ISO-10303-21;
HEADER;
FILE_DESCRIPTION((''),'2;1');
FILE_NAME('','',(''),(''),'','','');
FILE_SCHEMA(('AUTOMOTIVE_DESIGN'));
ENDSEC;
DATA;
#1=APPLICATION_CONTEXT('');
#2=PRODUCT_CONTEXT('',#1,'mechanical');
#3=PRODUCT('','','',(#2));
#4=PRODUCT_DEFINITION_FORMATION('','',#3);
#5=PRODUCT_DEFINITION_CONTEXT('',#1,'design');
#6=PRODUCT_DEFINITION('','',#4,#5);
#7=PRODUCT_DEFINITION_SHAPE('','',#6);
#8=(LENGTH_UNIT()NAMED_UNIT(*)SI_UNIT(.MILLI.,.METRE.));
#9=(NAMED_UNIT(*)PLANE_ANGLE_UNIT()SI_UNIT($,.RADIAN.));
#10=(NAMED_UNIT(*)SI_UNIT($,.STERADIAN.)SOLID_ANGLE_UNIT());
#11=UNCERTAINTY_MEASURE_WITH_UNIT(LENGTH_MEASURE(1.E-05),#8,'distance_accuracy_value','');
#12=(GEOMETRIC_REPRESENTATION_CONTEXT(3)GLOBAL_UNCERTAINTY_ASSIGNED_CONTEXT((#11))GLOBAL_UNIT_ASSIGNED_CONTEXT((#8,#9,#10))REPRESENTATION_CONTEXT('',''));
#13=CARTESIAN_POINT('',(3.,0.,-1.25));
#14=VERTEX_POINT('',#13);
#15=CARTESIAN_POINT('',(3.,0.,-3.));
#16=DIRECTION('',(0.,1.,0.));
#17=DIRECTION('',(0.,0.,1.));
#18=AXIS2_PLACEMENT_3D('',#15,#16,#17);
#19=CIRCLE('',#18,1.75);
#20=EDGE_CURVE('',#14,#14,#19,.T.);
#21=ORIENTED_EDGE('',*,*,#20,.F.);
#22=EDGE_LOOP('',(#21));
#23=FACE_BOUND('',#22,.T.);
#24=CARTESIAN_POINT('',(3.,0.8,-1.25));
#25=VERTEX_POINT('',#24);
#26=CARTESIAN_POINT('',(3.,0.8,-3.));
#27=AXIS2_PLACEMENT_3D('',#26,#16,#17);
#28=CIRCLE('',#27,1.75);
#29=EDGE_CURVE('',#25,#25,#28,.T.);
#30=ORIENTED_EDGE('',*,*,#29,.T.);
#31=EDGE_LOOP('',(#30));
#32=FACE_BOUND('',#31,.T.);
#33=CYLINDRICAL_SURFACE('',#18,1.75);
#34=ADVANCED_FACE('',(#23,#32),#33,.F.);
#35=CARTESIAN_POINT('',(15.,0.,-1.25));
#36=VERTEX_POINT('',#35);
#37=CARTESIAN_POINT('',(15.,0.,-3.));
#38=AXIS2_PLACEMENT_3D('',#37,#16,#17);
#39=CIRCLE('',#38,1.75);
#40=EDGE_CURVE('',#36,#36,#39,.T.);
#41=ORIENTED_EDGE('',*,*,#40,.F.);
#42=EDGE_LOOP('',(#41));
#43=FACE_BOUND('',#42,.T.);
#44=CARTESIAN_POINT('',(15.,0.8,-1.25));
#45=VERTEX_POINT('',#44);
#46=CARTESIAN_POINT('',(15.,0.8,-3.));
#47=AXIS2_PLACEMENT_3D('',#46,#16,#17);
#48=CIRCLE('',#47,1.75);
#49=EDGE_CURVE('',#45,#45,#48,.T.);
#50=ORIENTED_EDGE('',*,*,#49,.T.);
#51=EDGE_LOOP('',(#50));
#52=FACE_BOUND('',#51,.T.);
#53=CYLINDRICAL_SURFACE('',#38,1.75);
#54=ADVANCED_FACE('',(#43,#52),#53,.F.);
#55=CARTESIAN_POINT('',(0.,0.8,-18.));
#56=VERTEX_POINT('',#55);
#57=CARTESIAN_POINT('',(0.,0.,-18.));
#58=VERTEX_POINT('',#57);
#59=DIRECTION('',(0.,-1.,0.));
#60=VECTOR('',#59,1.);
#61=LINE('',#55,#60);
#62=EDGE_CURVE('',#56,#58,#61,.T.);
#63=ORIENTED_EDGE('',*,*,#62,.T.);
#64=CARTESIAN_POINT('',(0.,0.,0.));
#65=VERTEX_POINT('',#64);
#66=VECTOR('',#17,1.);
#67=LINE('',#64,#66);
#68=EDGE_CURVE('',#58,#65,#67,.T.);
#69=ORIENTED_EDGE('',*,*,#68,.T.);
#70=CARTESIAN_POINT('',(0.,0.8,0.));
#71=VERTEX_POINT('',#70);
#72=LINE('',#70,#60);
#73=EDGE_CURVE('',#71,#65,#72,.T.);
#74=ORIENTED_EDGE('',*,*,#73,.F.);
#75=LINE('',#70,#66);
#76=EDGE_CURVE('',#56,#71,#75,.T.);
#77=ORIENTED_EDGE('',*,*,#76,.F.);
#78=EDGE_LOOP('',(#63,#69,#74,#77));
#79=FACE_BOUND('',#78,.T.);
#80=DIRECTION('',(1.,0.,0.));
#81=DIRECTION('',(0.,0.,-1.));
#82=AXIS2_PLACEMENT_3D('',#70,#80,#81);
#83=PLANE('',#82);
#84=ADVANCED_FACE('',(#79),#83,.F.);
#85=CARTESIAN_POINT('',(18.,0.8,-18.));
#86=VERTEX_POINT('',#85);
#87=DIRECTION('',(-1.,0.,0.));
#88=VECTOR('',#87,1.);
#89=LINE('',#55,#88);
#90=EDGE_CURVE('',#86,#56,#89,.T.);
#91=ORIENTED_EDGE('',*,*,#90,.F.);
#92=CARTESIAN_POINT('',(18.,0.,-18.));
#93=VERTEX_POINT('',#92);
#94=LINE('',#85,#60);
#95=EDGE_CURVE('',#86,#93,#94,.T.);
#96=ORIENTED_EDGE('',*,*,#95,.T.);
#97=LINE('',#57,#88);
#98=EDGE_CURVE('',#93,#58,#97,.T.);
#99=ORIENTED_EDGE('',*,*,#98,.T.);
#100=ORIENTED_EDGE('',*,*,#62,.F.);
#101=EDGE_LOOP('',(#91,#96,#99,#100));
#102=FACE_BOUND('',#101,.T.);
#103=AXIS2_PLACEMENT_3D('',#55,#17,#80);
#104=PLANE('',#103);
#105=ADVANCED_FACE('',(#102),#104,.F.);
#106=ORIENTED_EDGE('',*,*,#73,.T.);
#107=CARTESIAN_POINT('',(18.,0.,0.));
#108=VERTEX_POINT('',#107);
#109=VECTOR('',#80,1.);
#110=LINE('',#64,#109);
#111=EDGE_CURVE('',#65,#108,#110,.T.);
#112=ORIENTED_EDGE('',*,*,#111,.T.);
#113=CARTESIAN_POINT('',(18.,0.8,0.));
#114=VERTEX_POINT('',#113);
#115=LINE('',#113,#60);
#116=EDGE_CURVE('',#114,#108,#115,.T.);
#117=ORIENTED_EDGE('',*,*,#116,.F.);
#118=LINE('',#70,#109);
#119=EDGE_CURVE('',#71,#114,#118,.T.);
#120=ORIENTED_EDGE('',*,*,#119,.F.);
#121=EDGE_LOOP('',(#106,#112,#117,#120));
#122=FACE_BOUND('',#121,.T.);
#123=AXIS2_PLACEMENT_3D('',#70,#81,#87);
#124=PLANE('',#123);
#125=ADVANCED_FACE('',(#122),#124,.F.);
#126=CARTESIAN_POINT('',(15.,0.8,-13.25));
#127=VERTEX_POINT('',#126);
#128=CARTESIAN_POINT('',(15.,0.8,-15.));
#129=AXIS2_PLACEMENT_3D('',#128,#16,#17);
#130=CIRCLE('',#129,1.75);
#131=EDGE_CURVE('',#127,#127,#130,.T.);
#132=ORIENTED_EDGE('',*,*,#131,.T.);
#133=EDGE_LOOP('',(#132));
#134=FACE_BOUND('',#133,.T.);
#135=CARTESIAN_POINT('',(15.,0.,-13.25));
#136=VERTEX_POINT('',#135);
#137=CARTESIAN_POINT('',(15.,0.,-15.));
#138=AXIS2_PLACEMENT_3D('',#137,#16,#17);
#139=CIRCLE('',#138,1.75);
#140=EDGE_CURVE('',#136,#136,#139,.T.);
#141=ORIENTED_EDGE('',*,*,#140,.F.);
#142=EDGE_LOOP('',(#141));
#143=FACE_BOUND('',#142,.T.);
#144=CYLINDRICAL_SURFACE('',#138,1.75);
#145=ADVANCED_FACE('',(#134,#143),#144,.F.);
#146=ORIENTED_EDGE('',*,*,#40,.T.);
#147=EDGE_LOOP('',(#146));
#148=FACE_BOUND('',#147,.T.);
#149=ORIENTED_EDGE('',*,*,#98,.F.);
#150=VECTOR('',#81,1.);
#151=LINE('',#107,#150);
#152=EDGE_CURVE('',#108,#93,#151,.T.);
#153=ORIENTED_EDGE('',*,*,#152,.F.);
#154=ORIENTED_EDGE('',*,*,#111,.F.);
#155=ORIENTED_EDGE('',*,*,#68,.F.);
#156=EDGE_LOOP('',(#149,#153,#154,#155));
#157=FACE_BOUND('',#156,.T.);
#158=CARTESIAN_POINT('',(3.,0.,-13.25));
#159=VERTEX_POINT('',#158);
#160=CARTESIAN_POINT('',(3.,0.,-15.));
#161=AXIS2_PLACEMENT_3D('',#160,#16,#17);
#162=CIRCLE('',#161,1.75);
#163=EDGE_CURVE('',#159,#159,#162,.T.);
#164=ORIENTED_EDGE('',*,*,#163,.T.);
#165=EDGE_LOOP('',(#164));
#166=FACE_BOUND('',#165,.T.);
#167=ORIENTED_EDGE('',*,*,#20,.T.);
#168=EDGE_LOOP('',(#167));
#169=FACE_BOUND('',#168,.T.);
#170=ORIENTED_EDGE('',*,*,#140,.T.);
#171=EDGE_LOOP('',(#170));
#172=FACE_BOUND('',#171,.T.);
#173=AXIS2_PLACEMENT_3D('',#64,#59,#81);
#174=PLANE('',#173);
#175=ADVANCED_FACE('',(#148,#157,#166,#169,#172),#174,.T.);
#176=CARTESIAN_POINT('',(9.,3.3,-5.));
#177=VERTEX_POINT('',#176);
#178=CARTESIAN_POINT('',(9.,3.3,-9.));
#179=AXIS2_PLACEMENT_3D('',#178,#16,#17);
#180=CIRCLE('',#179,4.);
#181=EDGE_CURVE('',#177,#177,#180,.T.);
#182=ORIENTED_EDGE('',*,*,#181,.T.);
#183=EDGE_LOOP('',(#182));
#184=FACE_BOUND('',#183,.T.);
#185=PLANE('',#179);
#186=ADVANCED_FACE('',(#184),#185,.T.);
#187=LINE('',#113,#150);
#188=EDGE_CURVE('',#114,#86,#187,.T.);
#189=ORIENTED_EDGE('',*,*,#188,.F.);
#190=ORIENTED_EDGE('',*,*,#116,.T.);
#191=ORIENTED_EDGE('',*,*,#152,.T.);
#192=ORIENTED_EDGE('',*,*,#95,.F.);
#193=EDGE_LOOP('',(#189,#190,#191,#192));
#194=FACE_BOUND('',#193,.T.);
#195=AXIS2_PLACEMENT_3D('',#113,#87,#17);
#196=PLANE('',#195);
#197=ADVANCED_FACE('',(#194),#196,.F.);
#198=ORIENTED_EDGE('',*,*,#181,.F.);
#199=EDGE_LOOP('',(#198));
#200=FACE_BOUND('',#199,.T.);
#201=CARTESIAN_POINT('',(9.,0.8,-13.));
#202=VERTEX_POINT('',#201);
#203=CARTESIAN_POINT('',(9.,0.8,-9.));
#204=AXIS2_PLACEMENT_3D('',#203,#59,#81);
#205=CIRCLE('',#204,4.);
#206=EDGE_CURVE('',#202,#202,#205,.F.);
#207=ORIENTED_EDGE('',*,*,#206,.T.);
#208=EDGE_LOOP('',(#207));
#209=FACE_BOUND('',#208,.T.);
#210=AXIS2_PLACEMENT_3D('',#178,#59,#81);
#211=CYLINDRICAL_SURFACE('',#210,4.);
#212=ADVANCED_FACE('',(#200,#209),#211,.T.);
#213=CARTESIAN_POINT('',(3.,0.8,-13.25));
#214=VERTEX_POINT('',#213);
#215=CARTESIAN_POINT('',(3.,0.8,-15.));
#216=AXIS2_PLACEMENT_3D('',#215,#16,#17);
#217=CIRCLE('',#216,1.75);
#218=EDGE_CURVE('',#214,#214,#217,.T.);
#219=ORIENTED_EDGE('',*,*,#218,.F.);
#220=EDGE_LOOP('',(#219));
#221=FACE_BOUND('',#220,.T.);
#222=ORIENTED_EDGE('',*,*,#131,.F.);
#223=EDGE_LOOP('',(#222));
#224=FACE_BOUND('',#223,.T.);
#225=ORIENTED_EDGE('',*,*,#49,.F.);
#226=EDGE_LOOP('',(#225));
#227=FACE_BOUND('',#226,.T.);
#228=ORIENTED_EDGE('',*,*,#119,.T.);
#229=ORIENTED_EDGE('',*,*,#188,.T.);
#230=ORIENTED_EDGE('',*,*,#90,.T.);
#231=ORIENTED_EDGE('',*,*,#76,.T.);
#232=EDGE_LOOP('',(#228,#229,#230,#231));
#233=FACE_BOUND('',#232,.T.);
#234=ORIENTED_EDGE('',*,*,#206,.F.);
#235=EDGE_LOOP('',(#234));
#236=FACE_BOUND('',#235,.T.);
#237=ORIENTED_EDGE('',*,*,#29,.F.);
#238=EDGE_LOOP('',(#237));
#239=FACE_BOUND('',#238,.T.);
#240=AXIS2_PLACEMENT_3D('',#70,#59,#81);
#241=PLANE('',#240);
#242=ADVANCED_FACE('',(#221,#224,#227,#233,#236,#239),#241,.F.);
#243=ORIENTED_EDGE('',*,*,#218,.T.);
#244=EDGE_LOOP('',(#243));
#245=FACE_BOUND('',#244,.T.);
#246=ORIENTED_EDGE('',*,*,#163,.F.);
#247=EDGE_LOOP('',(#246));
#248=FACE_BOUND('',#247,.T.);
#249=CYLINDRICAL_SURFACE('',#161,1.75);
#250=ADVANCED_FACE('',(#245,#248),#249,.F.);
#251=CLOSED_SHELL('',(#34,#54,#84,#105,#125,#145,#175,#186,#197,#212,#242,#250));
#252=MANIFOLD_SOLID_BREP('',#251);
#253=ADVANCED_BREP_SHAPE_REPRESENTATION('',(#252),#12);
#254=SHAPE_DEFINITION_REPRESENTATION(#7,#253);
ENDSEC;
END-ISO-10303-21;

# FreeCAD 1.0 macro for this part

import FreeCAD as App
import Part
import Sketcher
from FreeCAD import Vector


def add_polygon(sketch, points):
    """Adds a closed chain of lines whose ends are joined by coincident constraints."""
    first, n = sketch.GeometryCount, len(points)
    for a, b in zip(points, points[1:] + points[:1]):
        sketch.addGeometry(Part.LineSegment(App.Vector(*a, 0), App.Vector(*b, 0)), False)
    for i in range(n):
        sketch.addConstraint(Sketcher.Constraint("Coincident", first + i, 2, first + (i + 1) % n, 1))

doc = App.newDocument("Part")
body = doc.addObject("PartDesign::Body", "Body")

# Sketch on XZ plane
sketch1 = body.newObject("Sketcher::SketchObject", "Sketch")
sketch1.AttachmentSupport = (doc.getObject("XZ_Plane"), [""])
sketch1.MapMode = "FlatFace"
add_polygon(sketch1, [(0, -18), (0, 0), (18, 0), (18, -18)])  # lines 0-3
sketch1.addConstraint(Sketcher.Constraint("Vertical", 0))
sketch1.addConstraint(Sketcher.Constraint("Horizontal", 1))
sketch1.addConstraint(Sketcher.Constraint("Vertical", 2))
sketch1.addConstraint(Sketcher.Constraint("Horizontal", 3))
sketch1.addConstraint(Sketcher.Constraint("Coincident", 0, 2, -1, 1))
sketch1.addConstraint(Sketcher.Constraint("Equal", 3, 0))
sketch1.addConstraint(Sketcher.Constraint("DistanceX", 1, 1, 1, 2, 18.0))
pad1 = body.newObject("PartDesign::Pad", "Pad")
pad1.Profile = sketch1
pad1.Length = 0.8
pad1.Reversed = True

# Sketch on XZ plane
sketch2 = body.newObject("Sketcher::SketchObject", "Sketch001")
sketch2.AttachmentSupport = (doc.getObject("XZ_Plane"), [""])
sketch2.MapMode = "FlatFace"
sketch2.AttachmentOffset = App.Placement(Vector(0, 0, -0.8), App.Rotation())
sketch2.addGeometry(Part.Circle(Vector(3, -15, 0), Vector(0, 0, 1), 1.8), False)
sketch2.addGeometry(Part.Circle(Vector(15, -15, 0), Vector(0, 0, 1), 1.8), False)
sketch2.addGeometry(Part.Circle(Vector(15, -3, 0), Vector(0, 0, 1), 1.8), False)
sketch2.addGeometry(Part.Circle(Vector(3, -3, 0), Vector(0, 0, 1), 1.8), False)
sketch2.addConstraint(Sketcher.Constraint("Equal", 0, 1))
sketch2.addConstraint(Sketcher.Constraint("Equal", 1, 2))
sketch2.addConstraint(Sketcher.Constraint("Equal", 2, 3))
sketch2.addConstraint(Sketcher.Constraint("Horizontal", 0, 3, 1, 3))
sketch2.addConstraint(Sketcher.Constraint("Horizontal", 2, 3, 3, 3))
sketch2.addConstraint(Sketcher.Constraint("Vertical", 1, 3, 2, 3))
sketch2.addConstraint(Sketcher.Constraint("Vertical", 0, 3, 3, 3))
sketch2.addConstraint(Sketcher.Constraint("Diameter", 0, 3.5))
sketch2.addConstraint(Sketcher.Constraint("DistanceX", -1, 1, 0, 3, 3.0))
sketch2.addConstraint(Sketcher.Constraint("DistanceY", 0, 3, -1, 1, 15.0))
sketch2.addConstraint(Sketcher.Constraint("DistanceX", -1, 1, 1, 3, 15.0))
sketch2.addConstraint(Sketcher.Constraint("DistanceY", 2, 3, -1, 1, 3.0))
pocket1 = body.newObject("PartDesign::Pocket", "Pocket")
pocket1.Profile = sketch2
pocket1.Type = "ThroughAll"
pocket1.Reversed = True

# Sketch on XZ plane
sketch3 = body.newObject("Sketcher::SketchObject", "Sketch002")
sketch3.AttachmentSupport = (doc.getObject("XZ_Plane"), [""])
sketch3.MapMode = "FlatFace"
sketch3.AttachmentOffset = App.Placement(Vector(0, 0, -0.8), App.Rotation())
sketch3.addGeometry(Part.Circle(Vector(9, -9, 0), Vector(0, 0, 1), 4), False)
sketch3.addConstraint(Sketcher.Constraint("Diameter", 0, 8.0))
sketch3.addConstraint(Sketcher.Constraint("DistanceX", -1, 1, 0, 3, 9.0))
sketch3.addConstraint(Sketcher.Constraint("DistanceY", 0, 3, -1, 1, 9.0))
pad2 = body.newObject("PartDesign::Pad", "Pad001")
pad2.Profile = sketch3
pad2.Length = 2.5
pad2.Reversed = True

doc.recompute()
